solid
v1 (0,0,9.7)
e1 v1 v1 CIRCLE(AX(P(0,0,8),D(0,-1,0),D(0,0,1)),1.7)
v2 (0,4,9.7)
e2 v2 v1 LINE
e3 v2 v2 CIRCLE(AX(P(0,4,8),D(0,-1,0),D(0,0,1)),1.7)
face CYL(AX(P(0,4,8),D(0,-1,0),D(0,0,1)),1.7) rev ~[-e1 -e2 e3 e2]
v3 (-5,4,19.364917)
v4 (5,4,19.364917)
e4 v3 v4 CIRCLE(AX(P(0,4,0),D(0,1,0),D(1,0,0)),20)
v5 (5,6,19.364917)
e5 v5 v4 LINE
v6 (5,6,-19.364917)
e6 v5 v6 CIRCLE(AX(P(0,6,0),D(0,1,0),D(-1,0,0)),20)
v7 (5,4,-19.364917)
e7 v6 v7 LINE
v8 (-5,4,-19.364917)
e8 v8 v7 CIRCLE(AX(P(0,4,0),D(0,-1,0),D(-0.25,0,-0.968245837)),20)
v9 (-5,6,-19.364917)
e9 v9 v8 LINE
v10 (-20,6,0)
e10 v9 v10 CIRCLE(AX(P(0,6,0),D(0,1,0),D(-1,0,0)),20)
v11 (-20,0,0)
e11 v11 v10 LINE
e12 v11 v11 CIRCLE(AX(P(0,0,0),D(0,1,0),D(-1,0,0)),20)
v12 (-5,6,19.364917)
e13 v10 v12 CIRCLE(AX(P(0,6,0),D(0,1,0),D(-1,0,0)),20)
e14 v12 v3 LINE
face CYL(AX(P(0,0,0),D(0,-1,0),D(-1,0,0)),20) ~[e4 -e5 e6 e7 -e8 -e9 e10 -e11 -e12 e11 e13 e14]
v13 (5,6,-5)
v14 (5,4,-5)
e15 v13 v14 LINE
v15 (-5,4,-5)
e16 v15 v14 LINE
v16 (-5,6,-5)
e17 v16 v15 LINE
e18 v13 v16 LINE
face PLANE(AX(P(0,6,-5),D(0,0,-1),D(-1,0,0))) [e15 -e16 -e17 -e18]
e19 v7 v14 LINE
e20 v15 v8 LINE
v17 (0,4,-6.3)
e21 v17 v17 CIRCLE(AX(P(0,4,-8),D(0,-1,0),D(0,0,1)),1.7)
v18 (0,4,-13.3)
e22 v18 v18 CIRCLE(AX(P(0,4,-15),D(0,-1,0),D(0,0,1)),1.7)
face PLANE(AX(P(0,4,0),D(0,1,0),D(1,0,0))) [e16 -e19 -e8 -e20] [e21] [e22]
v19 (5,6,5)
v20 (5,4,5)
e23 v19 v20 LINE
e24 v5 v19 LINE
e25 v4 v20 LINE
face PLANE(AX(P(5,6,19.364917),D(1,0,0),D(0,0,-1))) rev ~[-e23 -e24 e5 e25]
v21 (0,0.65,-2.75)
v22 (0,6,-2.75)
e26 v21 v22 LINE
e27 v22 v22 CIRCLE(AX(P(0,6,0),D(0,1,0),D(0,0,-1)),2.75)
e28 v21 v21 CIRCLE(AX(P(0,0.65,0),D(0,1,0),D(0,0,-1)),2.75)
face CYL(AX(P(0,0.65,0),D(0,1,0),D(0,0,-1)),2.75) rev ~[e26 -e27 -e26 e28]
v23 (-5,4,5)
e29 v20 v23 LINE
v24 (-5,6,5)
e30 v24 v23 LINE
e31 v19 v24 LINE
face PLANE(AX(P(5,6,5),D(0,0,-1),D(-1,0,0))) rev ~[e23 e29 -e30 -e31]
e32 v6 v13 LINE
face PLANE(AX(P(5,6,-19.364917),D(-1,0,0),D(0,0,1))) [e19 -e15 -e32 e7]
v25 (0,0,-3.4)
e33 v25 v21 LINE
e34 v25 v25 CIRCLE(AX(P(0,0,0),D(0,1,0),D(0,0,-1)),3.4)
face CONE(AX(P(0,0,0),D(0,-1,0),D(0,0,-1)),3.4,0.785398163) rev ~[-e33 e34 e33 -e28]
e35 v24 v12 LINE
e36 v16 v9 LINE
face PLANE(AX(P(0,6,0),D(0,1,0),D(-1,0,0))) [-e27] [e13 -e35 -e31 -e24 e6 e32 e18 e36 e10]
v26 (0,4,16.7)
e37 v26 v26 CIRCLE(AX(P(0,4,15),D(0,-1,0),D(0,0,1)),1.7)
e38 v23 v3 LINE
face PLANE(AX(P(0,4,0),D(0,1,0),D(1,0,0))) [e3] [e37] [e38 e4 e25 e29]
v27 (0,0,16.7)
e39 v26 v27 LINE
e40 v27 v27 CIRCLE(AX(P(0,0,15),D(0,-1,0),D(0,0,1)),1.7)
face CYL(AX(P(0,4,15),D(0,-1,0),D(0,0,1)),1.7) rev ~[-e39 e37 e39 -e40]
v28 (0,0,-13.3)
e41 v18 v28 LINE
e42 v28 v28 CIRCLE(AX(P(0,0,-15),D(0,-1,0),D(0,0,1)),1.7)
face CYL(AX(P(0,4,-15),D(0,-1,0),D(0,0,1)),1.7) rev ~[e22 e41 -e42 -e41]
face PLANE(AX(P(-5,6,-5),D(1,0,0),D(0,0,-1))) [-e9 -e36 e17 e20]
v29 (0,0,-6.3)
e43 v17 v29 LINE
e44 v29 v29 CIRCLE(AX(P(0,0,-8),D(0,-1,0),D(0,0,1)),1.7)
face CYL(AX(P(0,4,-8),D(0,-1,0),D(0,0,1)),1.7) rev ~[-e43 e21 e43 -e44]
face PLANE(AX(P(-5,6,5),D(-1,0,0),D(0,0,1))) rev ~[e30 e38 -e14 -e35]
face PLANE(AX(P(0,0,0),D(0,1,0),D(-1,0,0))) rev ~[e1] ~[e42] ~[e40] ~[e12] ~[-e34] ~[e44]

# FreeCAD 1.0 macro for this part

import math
import FreeCAD as App
import Part
import Sketcher
from FreeCAD import Vector

doc = App.newDocument("Part")
body = doc.addObject("PartDesign::Body", "Body")

# Sketch on XZ plane
sketch1 = body.newObject("Sketcher::SketchObject", "Sketch")
sketch1.AttachmentSupport = (doc.getObject("XZ_Plane"), [""])
sketch1.MapMode = "FlatFace"
sketch1.addGeometry(Part.Circle(Vector(0, 0, 0), Vector(0, 0, 1), 20), False)
sketch1.addConstraint(Sketcher.Constraint("Coincident", 0, 3, -1, 1))
sketch1.addConstraint(Sketcher.Constraint("Diameter", 0, 40.0))
pad1 = body.newObject("PartDesign::Pad", "Pad")
pad1.Profile = sketch1
pad1.Length = 6
pad1.Reversed = True

# Sketch on XZ plane
sketch2 = body.newObject("Sketcher::SketchObject", "Sketch001")
sketch2.AttachmentSupport = (doc.getObject("XZ_Plane"), [""])
sketch2.MapMode = "FlatFace"
sketch2.AttachmentOffset = App.Placement(Vector(0, 0, -6), App.Rotation())
sketch2.addGeometry(Part.LineSegment(Vector(-5, -5, 0), Vector(5, -5, 0)), False)
sketch2.addGeometry(Part.LineSegment(Vector(5, -5, 0), Vector(5, -19, 0)), False)
sketch2.addGeometry(Part.ArcOfCircle(Part.Circle(Vector(0, 0, 0), Vector(0, 0, 1), 20), math.radians(-104), math.radians(-76)), False)
sketch2.addGeometry(Part.LineSegment(Vector(-5, -19, 0), Vector(-5, -5, 0)), False)
sketch2.addGeometry(Part.LineSegment(Vector(-5, 5, 0), Vector(-5, 19, 0)), False)
sketch2.addGeometry(Part.ArcOfCircle(Part.Circle(Vector(0, 0, 0), Vector(0, 0, 1), 20), math.radians(76), math.radians(104)), False)
sketch2.addGeometry(Part.LineSegment(Vector(5, 19, 0), Vector(5, 5, 0)), False)
sketch2.addGeometry(Part.LineSegment(Vector(5, 5, 0), Vector(-5, 5, 0)), False)
sketch2.addConstraint(Sketcher.Constraint("Coincident", 0, 2, 1, 1))
sketch2.addConstraint(Sketcher.Constraint("Coincident", 1, 2, 2, 2))
sketch2.addConstraint(Sketcher.Constraint("Coincident", 2, 1, 3, 1))
sketch2.addConstraint(Sketcher.Constraint("Coincident", 3, 2, 0, 1))
sketch2.addConstraint(Sketcher.Constraint("Coincident", 4, 2, 5, 2))
sketch2.addConstraint(Sketcher.Constraint("Coincident", 5, 1, 6, 1))
sketch2.addConstraint(Sketcher.Constraint("Coincident", 6, 2, 7, 1))
sketch2.addConstraint(Sketcher.Constraint("Coincident", 7, 2, 4, 1))
sketch2.addConstraint(Sketcher.Constraint("Horizontal", 0))
sketch2.addConstraint(Sketcher.Constraint("Vertical", 1))
sketch2.addConstraint(Sketcher.Constraint("Vertical", 3))
sketch2.addConstraint(Sketcher.Constraint("Vertical", 4))
sketch2.addConstraint(Sketcher.Constraint("Vertical", 6))
sketch2.addConstraint(Sketcher.Constraint("Horizontal", 7))
sketch2.addConstraint(Sketcher.Constraint("Coincident", 2, 3, -1, 1))
sketch2.addConstraint(Sketcher.Constraint("Coincident", 5, 3, -1, 1))
sketch2.addConstraint(Sketcher.Constraint("Equal", 2, 5))
sketch2.addConstraint(Sketcher.Constraint("Symmetric", 3, 2, 6, 2, -1, 1))
sketch2.addConstraint(Sketcher.Constraint("Horizontal", 1, 2, 2, 1))
sketch2.addConstraint(Sketcher.Constraint("Horizontal", 4, 2, 5, 1))
sketch2.addConstraint(Sketcher.Constraint("DistanceX", 0, 1, 0, 2, 10.0))
sketch2.addConstraint(Sketcher.Constraint("Radius", 2, 20.0))
sketch2.addConstraint(Sketcher.Constraint("DistanceY", 0, 2, 6, 2, 10.0))
pocket1 = body.newObject("PartDesign::Pocket", "Pocket")
pocket1.Profile = sketch2
pocket1.Length = 2
pocket1.Reversed = True

# Sketch on XZ plane
sketch3 = body.newObject("Sketcher::SketchObject", "Sketch002")
sketch3.AttachmentSupport = (doc.getObject("XZ_Plane"), [""])
sketch3.MapMode = "FlatFace"
sketch3.AttachmentOffset = App.Placement(Vector(0, 0, -4), App.Rotation())
sketch3.addGeometry(Part.Circle(Vector(0, 15, 0), Vector(0, 0, 1), 1.7), False)
sketch3.addGeometry(Part.Circle(Vector(0, 8, 0), Vector(0, 0, 1), 1.7), False)
sketch3.addGeometry(Part.Circle(Vector(0, -8, 0), Vector(0, 0, 1), 1.7), False)
sketch3.addGeometry(Part.Circle(Vector(0, -15, 0), Vector(0, 0, 1), 1.7), False)
sketch3.addConstraint(Sketcher.Constraint("Equal", 0, 1))
sketch3.addConstraint(Sketcher.Constraint("Equal", 1, 2))
sketch3.addConstraint(Sketcher.Constraint("Equal", 2, 3))
sketch3.addConstraint(Sketcher.Constraint("Symmetric", 1, 3, 2, 3, -1, 1))
sketch3.addConstraint(Sketcher.Constraint("Symmetric", 0, 3, 3, 3, -1, 1))
sketch3.addConstraint(Sketcher.Constraint("PointOnObject", 0, 3, -2))
sketch3.addConstraint(Sketcher.Constraint("PointOnObject", 1, 3, -2))
sketch3.addConstraint(Sketcher.Constraint("Diameter", 0, 3.4))
sketch3.addConstraint(Sketcher.Constraint("DistanceY", -1, 1, 0, 3, 15.0))
sketch3.addConstraint(Sketcher.Constraint("DistanceY", -1, 1, 1, 3, 8.0))
doc.recompute()
hole = body.newObject("PartDesign::Hole", "Hole")
hole.Profile = sketch3
hole.ThreadType = "None"
hole.Diameter = 3.4
hole.DepthType = "Dimension"
hole.Depth = 10.979
hole.DrillPoint = "Angled"
hole.DrillPointAngle = 118
hole.Reversed = True

# Sketch on XZ plane
sketch4 = body.newObject("Sketcher::SketchObject", "Sketch003")
sketch4.AttachmentSupport = (doc.getObject("XZ_Plane"), [""])
sketch4.MapMode = "FlatFace"
sketch4.addGeometry(Part.Circle(Vector(0, 0, 0), Vector(0, 0, 1), 2.8), False)
sketch4.addConstraint(Sketcher.Constraint("Coincident", 0, 3, -1, 1))
sketch4.addConstraint(Sketcher.Constraint("Diameter", 0, 5.5))
doc.recompute()
hole2 = body.newObject("PartDesign::Hole", "Hole001")
hole2.Profile = sketch4
hole2.ThreadType = "None"
hole2.Diameter = 5.5
hole2.DepthType = "Dimension"
hole2.Depth = 8.8
hole2.DrillPoint = "Angled"
hole2.DrillPointAngle = 118
hole2.HoleCutType = "Countersink"
hole2.HoleCutDiameter = 6.8
hole2.HoleCutCountersinkAngle = 90

doc.recompute()
